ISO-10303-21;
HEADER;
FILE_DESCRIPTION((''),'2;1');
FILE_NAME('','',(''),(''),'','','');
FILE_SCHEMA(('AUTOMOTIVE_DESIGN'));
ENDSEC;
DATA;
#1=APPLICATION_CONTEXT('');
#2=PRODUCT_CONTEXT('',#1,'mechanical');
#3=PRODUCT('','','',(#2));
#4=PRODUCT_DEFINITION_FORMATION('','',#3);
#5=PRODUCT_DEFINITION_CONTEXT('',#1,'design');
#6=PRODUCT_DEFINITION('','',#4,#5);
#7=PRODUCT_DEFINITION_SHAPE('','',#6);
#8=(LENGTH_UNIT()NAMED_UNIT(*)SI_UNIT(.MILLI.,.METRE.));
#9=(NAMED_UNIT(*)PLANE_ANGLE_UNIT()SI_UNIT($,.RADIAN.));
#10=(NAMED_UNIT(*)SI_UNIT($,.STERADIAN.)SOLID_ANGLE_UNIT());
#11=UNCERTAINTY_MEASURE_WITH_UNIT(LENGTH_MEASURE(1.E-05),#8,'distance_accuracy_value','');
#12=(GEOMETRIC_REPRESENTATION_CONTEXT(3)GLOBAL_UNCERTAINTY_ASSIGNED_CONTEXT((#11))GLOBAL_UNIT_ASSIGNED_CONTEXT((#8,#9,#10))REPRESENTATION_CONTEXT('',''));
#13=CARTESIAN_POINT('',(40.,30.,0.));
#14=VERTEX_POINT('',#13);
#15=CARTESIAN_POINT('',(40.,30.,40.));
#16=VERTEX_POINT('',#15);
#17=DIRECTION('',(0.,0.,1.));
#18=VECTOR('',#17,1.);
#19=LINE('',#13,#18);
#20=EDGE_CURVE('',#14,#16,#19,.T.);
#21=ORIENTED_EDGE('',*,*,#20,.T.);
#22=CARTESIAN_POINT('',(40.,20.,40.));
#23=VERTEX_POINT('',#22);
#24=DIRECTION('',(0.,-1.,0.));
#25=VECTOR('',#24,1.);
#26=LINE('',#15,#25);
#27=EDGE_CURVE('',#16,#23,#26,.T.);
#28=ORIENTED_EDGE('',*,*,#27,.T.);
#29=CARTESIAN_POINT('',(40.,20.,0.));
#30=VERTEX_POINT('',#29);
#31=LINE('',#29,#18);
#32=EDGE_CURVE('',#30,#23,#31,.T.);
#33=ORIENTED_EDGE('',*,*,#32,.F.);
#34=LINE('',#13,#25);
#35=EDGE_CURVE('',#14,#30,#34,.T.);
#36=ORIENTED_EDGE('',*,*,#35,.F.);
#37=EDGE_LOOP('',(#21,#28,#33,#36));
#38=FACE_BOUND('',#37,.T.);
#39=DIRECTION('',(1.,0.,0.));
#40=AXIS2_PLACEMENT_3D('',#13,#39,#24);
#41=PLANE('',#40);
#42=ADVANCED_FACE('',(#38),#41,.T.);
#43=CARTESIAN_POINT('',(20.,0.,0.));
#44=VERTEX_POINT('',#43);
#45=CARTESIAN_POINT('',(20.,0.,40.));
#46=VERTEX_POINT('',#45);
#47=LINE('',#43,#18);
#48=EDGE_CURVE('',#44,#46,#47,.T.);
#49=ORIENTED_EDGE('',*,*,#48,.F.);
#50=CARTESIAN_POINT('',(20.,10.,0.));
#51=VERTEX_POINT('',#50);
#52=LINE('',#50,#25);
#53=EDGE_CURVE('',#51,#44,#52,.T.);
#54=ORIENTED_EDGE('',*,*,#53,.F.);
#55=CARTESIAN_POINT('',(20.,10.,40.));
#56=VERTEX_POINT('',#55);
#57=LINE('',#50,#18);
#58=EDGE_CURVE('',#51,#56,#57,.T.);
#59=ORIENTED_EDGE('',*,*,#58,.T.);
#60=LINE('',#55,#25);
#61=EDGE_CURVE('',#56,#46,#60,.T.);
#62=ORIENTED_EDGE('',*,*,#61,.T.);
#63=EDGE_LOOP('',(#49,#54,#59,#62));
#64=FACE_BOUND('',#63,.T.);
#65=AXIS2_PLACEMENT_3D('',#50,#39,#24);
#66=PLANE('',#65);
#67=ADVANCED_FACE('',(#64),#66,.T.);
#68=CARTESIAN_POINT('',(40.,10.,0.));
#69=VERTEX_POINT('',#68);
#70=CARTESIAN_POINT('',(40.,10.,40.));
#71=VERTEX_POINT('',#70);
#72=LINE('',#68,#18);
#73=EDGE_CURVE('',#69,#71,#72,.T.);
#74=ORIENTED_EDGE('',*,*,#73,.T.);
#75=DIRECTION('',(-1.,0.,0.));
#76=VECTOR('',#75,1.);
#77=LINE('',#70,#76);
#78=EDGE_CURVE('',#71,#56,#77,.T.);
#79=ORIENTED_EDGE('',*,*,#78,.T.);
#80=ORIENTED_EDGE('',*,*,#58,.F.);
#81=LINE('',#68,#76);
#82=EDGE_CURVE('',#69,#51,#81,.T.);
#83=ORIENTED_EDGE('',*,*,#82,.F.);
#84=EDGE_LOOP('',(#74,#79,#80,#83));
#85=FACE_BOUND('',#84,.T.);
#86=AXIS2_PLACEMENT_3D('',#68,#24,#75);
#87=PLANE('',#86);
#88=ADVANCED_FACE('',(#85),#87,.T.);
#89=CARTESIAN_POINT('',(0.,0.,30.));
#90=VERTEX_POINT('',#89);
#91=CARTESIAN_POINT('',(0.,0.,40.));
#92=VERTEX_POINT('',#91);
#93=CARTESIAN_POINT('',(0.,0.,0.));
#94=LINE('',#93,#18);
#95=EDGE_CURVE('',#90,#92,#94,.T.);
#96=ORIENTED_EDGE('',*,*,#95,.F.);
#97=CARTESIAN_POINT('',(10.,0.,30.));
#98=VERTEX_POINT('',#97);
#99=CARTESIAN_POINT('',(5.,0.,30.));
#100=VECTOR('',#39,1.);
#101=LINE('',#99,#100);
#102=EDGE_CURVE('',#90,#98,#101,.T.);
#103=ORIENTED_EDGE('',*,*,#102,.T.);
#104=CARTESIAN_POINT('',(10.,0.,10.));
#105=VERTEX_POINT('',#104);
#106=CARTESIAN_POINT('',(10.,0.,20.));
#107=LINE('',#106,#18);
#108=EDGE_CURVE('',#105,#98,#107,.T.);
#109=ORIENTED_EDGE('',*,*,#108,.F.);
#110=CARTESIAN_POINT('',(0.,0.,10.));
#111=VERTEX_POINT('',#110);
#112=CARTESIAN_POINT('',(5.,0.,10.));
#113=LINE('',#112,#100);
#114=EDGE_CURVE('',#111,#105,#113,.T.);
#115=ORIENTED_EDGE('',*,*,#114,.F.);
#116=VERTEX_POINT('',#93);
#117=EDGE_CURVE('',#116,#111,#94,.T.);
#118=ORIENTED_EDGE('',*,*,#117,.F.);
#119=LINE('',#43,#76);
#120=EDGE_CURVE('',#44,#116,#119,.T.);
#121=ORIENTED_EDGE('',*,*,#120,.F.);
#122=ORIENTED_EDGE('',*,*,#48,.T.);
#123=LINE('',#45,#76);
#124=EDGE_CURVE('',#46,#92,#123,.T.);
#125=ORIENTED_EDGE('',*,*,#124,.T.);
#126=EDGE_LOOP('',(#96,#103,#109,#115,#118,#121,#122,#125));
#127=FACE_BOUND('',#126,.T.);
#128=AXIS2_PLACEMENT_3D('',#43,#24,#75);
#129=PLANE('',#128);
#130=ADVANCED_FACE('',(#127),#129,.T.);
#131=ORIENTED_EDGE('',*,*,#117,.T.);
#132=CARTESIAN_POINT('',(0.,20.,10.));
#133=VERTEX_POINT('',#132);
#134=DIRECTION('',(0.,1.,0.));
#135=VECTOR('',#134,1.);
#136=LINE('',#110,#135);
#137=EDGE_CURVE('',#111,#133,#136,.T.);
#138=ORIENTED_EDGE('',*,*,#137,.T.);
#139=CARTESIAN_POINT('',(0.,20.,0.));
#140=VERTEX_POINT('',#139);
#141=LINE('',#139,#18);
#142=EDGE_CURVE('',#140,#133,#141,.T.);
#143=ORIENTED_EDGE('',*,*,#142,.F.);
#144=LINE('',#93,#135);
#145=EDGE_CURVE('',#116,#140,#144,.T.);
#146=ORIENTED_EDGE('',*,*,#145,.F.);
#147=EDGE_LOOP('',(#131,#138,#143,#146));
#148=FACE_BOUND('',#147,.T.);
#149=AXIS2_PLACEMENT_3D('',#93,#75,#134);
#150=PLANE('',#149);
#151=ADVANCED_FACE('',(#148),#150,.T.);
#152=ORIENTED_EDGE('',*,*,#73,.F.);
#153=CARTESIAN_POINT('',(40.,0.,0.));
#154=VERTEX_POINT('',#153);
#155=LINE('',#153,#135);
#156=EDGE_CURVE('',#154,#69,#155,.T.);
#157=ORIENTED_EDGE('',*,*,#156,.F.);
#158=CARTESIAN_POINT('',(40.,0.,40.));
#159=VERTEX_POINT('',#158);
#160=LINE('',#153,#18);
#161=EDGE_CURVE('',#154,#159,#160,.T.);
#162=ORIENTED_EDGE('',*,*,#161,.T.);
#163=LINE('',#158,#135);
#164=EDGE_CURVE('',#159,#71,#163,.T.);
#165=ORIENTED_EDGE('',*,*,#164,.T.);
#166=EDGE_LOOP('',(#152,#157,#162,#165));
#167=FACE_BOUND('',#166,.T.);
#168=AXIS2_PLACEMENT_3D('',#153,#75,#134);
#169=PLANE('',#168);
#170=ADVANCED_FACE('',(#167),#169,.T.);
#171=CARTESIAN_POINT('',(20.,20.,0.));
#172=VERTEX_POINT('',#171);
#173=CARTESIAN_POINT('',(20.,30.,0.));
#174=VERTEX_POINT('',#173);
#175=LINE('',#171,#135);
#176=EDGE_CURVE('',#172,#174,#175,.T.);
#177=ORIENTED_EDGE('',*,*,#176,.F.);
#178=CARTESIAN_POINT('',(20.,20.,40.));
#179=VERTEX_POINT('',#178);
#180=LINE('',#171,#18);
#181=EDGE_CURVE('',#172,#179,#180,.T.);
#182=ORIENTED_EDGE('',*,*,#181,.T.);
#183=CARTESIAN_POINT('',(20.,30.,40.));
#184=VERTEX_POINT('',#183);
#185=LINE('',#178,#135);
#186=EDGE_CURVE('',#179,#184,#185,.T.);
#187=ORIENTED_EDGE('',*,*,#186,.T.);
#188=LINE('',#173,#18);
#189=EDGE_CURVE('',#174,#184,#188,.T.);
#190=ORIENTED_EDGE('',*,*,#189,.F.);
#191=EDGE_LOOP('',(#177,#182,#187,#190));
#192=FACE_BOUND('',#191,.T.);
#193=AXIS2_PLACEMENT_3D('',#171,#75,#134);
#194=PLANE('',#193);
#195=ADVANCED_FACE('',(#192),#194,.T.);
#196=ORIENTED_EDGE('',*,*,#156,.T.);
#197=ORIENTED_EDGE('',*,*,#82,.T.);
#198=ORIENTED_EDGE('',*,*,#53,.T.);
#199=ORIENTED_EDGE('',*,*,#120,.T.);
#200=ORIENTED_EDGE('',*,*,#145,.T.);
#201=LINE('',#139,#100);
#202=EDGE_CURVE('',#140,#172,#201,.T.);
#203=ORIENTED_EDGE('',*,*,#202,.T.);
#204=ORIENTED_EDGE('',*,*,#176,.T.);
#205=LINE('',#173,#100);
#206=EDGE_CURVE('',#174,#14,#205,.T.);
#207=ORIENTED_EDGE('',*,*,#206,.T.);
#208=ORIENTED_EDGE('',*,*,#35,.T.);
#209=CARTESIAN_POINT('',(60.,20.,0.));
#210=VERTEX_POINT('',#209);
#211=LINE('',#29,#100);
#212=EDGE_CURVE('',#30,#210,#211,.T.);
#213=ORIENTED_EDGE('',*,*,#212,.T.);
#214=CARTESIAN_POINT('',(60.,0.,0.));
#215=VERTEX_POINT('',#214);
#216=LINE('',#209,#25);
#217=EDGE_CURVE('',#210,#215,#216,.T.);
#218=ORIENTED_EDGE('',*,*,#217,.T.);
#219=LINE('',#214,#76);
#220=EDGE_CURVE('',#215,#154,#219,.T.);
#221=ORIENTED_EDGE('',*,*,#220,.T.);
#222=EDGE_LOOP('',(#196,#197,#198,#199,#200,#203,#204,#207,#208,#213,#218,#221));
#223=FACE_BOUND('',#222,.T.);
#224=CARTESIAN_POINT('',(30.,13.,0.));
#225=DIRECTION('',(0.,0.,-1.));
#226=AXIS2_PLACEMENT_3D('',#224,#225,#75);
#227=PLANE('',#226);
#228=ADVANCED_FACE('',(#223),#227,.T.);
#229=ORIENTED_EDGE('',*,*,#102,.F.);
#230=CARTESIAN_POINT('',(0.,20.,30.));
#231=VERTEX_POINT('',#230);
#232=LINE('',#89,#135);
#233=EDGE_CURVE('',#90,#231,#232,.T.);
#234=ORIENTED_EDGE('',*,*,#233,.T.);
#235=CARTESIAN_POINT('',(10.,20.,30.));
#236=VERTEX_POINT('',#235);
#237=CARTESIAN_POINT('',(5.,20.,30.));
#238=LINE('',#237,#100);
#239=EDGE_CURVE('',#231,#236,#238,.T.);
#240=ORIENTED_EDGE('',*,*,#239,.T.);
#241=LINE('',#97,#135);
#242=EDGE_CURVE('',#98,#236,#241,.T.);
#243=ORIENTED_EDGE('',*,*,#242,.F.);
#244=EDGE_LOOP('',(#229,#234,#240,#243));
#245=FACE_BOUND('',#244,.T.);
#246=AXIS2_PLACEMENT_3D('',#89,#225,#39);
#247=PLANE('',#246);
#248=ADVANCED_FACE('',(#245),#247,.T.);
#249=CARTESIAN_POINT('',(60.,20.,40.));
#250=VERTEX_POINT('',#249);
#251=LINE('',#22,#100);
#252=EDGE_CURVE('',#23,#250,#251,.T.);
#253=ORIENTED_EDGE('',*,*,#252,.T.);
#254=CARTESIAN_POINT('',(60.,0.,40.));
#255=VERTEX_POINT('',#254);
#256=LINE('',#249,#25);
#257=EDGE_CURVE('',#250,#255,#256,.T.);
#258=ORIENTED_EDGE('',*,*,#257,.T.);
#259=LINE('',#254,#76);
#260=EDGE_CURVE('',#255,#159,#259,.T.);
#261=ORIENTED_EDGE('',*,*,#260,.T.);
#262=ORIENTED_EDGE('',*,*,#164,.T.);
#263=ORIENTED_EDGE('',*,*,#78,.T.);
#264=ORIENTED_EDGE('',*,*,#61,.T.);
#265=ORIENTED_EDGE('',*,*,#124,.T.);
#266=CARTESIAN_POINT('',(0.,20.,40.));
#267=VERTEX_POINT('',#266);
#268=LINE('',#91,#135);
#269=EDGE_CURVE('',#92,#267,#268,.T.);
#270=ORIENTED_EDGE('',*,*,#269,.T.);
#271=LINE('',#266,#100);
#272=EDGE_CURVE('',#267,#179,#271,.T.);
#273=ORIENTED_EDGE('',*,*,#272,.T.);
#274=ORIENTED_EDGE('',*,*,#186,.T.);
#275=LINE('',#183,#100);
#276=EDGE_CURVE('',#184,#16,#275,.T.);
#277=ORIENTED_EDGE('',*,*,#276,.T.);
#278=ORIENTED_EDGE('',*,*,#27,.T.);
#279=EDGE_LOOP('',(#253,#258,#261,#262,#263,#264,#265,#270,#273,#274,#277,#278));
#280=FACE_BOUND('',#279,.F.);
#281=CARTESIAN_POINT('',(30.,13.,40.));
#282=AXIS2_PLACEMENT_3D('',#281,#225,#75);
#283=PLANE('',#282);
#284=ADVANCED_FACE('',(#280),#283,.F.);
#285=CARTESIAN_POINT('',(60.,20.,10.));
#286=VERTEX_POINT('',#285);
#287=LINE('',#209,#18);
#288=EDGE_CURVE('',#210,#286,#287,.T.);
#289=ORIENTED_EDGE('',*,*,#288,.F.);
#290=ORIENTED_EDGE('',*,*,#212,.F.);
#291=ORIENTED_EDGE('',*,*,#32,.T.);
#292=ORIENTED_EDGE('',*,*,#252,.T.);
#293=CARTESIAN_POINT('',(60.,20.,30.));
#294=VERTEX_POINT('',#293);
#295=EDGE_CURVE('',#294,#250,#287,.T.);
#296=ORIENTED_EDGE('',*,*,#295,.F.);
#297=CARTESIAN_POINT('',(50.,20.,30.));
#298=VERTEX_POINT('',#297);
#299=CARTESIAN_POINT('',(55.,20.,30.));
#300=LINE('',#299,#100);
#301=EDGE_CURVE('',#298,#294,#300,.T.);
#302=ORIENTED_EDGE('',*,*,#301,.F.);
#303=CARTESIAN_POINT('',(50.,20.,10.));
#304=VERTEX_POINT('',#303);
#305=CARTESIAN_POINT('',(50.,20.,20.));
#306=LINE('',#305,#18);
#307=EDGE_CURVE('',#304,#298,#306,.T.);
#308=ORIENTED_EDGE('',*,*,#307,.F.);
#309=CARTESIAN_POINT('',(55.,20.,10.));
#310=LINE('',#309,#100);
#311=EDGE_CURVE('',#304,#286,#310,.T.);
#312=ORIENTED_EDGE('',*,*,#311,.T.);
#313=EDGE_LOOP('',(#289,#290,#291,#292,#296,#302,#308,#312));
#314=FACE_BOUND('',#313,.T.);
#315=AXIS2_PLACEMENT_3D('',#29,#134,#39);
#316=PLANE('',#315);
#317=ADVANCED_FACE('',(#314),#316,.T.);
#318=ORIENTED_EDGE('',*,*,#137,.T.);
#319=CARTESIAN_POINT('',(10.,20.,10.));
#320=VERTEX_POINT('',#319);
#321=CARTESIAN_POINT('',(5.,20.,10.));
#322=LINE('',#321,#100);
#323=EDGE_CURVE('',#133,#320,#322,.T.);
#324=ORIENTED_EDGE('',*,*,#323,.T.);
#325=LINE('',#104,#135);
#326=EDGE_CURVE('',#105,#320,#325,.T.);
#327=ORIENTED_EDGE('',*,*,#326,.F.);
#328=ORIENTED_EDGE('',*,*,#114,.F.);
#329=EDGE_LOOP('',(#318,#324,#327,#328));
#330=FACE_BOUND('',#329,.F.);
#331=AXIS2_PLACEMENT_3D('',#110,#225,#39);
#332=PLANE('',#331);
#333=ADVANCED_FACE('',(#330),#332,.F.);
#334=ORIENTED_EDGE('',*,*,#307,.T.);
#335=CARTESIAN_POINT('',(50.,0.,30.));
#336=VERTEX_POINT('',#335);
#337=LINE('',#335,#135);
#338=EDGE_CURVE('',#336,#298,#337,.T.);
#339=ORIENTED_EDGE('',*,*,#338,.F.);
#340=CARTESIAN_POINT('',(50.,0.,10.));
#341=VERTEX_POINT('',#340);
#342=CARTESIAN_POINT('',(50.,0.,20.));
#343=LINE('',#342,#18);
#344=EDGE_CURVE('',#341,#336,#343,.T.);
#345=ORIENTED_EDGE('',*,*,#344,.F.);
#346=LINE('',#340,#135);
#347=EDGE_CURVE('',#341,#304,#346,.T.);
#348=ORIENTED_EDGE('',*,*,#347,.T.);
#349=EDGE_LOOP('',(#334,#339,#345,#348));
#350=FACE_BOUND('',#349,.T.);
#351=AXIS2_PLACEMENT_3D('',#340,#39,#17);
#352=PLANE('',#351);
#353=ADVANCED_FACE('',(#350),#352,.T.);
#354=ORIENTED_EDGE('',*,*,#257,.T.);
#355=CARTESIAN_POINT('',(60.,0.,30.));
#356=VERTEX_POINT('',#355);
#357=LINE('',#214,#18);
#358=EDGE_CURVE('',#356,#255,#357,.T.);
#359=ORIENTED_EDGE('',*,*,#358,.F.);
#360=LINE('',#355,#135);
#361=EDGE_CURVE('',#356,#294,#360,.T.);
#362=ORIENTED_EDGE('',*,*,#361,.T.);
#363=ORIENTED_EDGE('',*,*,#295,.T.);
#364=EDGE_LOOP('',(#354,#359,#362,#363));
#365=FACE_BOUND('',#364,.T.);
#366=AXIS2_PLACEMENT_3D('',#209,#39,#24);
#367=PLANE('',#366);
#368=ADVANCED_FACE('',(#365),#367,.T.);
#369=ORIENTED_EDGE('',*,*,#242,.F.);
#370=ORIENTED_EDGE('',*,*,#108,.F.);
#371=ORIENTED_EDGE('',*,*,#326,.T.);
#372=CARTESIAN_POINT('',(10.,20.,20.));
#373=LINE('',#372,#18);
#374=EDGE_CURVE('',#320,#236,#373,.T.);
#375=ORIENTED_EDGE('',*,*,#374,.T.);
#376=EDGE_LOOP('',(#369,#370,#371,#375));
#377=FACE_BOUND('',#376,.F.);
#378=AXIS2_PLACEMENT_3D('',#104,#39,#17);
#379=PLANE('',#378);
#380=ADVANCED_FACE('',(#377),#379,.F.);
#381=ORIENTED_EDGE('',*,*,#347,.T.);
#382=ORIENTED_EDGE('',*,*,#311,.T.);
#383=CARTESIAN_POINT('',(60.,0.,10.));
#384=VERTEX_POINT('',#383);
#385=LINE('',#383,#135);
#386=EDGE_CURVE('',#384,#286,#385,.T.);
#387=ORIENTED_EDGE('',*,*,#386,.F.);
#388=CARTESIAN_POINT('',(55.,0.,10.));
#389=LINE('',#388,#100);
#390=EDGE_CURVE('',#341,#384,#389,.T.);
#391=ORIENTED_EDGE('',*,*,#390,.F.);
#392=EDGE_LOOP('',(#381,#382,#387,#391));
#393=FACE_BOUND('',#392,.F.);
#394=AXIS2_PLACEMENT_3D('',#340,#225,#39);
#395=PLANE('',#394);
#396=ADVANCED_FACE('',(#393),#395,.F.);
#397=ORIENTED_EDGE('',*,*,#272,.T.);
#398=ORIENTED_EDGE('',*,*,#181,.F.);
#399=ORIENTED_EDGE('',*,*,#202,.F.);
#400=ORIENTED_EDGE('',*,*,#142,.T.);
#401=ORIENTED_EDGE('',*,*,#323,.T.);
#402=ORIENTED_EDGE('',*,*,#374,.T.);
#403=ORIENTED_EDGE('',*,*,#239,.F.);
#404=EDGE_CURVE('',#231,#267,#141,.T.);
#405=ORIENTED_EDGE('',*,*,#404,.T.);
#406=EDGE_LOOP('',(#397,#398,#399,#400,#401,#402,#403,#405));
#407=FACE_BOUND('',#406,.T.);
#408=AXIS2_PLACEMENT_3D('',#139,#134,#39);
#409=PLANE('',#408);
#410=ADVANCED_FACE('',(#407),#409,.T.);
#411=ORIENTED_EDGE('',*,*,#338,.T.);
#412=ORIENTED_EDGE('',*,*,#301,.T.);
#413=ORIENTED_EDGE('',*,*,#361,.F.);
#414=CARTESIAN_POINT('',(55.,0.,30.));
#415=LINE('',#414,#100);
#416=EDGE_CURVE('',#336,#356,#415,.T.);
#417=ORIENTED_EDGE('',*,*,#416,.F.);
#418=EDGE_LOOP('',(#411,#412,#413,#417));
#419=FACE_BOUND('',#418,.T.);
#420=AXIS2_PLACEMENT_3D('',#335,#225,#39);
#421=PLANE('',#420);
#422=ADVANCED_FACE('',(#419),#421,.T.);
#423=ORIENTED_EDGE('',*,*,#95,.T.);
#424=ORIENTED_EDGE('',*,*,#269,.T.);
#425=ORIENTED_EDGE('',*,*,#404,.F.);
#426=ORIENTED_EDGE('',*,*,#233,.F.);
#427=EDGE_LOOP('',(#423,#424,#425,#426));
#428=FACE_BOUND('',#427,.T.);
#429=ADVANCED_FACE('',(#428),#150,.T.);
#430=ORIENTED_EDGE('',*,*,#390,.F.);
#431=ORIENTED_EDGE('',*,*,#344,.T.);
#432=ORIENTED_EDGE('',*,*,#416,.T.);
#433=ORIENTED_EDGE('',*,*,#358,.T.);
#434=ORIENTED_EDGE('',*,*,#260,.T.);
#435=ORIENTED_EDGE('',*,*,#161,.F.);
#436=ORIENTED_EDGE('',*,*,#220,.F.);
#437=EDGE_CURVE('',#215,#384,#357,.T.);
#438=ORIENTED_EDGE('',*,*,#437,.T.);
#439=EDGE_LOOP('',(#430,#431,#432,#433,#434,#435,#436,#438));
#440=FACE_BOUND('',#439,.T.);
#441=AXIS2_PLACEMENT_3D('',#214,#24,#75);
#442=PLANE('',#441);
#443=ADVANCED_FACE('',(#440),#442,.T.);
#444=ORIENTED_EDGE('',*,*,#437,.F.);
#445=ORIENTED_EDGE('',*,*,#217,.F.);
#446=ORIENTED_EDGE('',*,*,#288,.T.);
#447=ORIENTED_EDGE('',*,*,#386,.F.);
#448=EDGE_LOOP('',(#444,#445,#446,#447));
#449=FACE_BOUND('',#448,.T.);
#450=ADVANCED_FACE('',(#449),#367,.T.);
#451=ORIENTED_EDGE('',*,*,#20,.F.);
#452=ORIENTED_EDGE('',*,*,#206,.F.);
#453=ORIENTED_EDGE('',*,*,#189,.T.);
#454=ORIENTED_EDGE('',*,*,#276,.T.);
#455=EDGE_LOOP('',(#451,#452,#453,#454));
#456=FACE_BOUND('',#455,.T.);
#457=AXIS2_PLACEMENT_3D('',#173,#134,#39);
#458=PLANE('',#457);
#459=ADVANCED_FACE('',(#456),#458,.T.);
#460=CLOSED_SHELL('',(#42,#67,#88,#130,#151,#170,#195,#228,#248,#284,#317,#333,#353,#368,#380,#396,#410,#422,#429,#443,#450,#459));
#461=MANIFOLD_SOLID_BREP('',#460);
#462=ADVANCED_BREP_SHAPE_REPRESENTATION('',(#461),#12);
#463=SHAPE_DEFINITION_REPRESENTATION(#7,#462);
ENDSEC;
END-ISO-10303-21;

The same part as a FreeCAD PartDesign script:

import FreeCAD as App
import Part
import Sketcher
Q = App.Units.Quantity


def add_polygon(sketch, points):
    """Adds a closed chain of lines whose ends are joined by coincident constraints."""
    first, n = sketch.GeometryCount, len(points)
    for a, b in zip(points, points[1:] + points[:1]):
        sketch.addGeometry(Part.LineSegment(App.Vector(*a, 0), App.Vector(*b, 0)), False)
    for i in range(n):
        sketch.addConstraint(Sketcher.Constraint("Coincident", first + i, 2, first + (i + 1) % n, 1))

doc = App.newDocument("Part")
body = doc.addObject("PartDesign::Body", "Body")

sketch1 = doc.addObject("Sketcher::SketchObject", "Sketch")
body.addObject(sketch1)
sketch1.AttachmentSupport = (doc.XY_Plane, [""])
sketch1.MapMode = "FlatFace"
add_polygon(sketch1, [(0, 20), (0, 0), (20, 0), (20, 10), (40, 10), (40, 0), (60, 0), (60, 20), (40, 20), (40, 30), (20, 30), (20, 20)])
sketch1.addConstraint([
    Sketcher.Constraint("Vertical", 0),
    Sketcher.Constraint("Horizontal", 1),
    Sketcher.Constraint("Vertical", 2),
    Sketcher.Constraint("Horizontal", 3),
    Sketcher.Constraint("Vertical", 4),
    Sketcher.Constraint("Horizontal", 5),
    Sketcher.Constraint("Vertical", 6),
    Sketcher.Constraint("Horizontal", 7),
    Sketcher.Constraint("Vertical", 8),
    Sketcher.Constraint("Horizontal", 9),
    Sketcher.Constraint("Vertical", 10),
    Sketcher.Constraint("Horizontal", 11),
    Sketcher.Constraint("Coincident", 0, 2, -1, 1),
    Sketcher.Constraint("PointOnObject", 4, 2, -1),
    Sketcher.Constraint("Horizontal", 7, 2, 10, 2),
    Sketcher.Constraint("Vertical", 4, 2, 7, 2),
    Sketcher.Constraint("Vertical", 2, 2, 9, 2),
    Sketcher.Constraint("Equal", 1, 3),
    Sketcher.Constraint("Equal", 3, 5),
    Sketcher.Constraint("Equal", 11, 0),
    Sketcher.Constraint("Equal", 4, 8),
    Sketcher.Constraint("DistanceX", 1, 1, 1, 2, Q("20 mm")),
    Sketcher.Constraint("DistanceY", 2, 1, 2, 2, Q("10 mm")),
])
pad1 = doc.addObject("PartDesign::Pad", "Pad")
body.addObject(pad1)
pad1.Profile = sketch1
pad1.Length = 40

sketch2 = doc.addObject("Sketcher::SketchObject", "Sketch001")
body.addObject(sketch2)
sketch2.AttachmentSupport = (doc.XZ_Plane, [""])
sketch2.MapMode = "FlatFace"
add_polygon(sketch2, [(0, 30), (0, 10), (10, 10), (10, 30)])
add_polygon(sketch2, [(50, 30), (50, 10), (60, 10), (60, 30)])
sketch2.addConstraint([
    Sketcher.Constraint("Vertical", 0),
    Sketcher.Constraint("Horizontal", 1),
    Sketcher.Constraint("Vertical", 2),
    Sketcher.Constraint("Horizontal", 3),
    Sketcher.Constraint("Vertical", 4),
    Sketcher.Constraint("Horizontal", 5),
    Sketcher.Constraint("Vertical", 6),
    Sketcher.Constraint("Horizontal", 7),
    Sketcher.Constraint("PointOnObject", 0, 2, -2),
    Sketcher.Constraint("Horizontal", 1, 2, 4, 2),
    Sketcher.Constraint("Horizontal", 3, 2, 6, 2),
    Sketcher.Constraint("Equal", 3, 5),
    Sketcher.Constraint("DistanceX", 1, 1, 1, 2, Q("10 mm")),
    Sketcher.Constraint("DistanceY", 0, 2, 0, 1, Q("20 mm")),
    Sketcher.Constraint("DistanceY", -1, 1, 0, 2, Q("10 mm")),
    Sketcher.Constraint("DistanceX", -1, 1, 4, 2, Q("50 mm")),
])
pocket1 = doc.addObject("PartDesign::Pocket", "Pocket")
body.addObject(pocket1)
pocket1.Profile = sketch2
pocket1.Length = 20

doc.recompute()
